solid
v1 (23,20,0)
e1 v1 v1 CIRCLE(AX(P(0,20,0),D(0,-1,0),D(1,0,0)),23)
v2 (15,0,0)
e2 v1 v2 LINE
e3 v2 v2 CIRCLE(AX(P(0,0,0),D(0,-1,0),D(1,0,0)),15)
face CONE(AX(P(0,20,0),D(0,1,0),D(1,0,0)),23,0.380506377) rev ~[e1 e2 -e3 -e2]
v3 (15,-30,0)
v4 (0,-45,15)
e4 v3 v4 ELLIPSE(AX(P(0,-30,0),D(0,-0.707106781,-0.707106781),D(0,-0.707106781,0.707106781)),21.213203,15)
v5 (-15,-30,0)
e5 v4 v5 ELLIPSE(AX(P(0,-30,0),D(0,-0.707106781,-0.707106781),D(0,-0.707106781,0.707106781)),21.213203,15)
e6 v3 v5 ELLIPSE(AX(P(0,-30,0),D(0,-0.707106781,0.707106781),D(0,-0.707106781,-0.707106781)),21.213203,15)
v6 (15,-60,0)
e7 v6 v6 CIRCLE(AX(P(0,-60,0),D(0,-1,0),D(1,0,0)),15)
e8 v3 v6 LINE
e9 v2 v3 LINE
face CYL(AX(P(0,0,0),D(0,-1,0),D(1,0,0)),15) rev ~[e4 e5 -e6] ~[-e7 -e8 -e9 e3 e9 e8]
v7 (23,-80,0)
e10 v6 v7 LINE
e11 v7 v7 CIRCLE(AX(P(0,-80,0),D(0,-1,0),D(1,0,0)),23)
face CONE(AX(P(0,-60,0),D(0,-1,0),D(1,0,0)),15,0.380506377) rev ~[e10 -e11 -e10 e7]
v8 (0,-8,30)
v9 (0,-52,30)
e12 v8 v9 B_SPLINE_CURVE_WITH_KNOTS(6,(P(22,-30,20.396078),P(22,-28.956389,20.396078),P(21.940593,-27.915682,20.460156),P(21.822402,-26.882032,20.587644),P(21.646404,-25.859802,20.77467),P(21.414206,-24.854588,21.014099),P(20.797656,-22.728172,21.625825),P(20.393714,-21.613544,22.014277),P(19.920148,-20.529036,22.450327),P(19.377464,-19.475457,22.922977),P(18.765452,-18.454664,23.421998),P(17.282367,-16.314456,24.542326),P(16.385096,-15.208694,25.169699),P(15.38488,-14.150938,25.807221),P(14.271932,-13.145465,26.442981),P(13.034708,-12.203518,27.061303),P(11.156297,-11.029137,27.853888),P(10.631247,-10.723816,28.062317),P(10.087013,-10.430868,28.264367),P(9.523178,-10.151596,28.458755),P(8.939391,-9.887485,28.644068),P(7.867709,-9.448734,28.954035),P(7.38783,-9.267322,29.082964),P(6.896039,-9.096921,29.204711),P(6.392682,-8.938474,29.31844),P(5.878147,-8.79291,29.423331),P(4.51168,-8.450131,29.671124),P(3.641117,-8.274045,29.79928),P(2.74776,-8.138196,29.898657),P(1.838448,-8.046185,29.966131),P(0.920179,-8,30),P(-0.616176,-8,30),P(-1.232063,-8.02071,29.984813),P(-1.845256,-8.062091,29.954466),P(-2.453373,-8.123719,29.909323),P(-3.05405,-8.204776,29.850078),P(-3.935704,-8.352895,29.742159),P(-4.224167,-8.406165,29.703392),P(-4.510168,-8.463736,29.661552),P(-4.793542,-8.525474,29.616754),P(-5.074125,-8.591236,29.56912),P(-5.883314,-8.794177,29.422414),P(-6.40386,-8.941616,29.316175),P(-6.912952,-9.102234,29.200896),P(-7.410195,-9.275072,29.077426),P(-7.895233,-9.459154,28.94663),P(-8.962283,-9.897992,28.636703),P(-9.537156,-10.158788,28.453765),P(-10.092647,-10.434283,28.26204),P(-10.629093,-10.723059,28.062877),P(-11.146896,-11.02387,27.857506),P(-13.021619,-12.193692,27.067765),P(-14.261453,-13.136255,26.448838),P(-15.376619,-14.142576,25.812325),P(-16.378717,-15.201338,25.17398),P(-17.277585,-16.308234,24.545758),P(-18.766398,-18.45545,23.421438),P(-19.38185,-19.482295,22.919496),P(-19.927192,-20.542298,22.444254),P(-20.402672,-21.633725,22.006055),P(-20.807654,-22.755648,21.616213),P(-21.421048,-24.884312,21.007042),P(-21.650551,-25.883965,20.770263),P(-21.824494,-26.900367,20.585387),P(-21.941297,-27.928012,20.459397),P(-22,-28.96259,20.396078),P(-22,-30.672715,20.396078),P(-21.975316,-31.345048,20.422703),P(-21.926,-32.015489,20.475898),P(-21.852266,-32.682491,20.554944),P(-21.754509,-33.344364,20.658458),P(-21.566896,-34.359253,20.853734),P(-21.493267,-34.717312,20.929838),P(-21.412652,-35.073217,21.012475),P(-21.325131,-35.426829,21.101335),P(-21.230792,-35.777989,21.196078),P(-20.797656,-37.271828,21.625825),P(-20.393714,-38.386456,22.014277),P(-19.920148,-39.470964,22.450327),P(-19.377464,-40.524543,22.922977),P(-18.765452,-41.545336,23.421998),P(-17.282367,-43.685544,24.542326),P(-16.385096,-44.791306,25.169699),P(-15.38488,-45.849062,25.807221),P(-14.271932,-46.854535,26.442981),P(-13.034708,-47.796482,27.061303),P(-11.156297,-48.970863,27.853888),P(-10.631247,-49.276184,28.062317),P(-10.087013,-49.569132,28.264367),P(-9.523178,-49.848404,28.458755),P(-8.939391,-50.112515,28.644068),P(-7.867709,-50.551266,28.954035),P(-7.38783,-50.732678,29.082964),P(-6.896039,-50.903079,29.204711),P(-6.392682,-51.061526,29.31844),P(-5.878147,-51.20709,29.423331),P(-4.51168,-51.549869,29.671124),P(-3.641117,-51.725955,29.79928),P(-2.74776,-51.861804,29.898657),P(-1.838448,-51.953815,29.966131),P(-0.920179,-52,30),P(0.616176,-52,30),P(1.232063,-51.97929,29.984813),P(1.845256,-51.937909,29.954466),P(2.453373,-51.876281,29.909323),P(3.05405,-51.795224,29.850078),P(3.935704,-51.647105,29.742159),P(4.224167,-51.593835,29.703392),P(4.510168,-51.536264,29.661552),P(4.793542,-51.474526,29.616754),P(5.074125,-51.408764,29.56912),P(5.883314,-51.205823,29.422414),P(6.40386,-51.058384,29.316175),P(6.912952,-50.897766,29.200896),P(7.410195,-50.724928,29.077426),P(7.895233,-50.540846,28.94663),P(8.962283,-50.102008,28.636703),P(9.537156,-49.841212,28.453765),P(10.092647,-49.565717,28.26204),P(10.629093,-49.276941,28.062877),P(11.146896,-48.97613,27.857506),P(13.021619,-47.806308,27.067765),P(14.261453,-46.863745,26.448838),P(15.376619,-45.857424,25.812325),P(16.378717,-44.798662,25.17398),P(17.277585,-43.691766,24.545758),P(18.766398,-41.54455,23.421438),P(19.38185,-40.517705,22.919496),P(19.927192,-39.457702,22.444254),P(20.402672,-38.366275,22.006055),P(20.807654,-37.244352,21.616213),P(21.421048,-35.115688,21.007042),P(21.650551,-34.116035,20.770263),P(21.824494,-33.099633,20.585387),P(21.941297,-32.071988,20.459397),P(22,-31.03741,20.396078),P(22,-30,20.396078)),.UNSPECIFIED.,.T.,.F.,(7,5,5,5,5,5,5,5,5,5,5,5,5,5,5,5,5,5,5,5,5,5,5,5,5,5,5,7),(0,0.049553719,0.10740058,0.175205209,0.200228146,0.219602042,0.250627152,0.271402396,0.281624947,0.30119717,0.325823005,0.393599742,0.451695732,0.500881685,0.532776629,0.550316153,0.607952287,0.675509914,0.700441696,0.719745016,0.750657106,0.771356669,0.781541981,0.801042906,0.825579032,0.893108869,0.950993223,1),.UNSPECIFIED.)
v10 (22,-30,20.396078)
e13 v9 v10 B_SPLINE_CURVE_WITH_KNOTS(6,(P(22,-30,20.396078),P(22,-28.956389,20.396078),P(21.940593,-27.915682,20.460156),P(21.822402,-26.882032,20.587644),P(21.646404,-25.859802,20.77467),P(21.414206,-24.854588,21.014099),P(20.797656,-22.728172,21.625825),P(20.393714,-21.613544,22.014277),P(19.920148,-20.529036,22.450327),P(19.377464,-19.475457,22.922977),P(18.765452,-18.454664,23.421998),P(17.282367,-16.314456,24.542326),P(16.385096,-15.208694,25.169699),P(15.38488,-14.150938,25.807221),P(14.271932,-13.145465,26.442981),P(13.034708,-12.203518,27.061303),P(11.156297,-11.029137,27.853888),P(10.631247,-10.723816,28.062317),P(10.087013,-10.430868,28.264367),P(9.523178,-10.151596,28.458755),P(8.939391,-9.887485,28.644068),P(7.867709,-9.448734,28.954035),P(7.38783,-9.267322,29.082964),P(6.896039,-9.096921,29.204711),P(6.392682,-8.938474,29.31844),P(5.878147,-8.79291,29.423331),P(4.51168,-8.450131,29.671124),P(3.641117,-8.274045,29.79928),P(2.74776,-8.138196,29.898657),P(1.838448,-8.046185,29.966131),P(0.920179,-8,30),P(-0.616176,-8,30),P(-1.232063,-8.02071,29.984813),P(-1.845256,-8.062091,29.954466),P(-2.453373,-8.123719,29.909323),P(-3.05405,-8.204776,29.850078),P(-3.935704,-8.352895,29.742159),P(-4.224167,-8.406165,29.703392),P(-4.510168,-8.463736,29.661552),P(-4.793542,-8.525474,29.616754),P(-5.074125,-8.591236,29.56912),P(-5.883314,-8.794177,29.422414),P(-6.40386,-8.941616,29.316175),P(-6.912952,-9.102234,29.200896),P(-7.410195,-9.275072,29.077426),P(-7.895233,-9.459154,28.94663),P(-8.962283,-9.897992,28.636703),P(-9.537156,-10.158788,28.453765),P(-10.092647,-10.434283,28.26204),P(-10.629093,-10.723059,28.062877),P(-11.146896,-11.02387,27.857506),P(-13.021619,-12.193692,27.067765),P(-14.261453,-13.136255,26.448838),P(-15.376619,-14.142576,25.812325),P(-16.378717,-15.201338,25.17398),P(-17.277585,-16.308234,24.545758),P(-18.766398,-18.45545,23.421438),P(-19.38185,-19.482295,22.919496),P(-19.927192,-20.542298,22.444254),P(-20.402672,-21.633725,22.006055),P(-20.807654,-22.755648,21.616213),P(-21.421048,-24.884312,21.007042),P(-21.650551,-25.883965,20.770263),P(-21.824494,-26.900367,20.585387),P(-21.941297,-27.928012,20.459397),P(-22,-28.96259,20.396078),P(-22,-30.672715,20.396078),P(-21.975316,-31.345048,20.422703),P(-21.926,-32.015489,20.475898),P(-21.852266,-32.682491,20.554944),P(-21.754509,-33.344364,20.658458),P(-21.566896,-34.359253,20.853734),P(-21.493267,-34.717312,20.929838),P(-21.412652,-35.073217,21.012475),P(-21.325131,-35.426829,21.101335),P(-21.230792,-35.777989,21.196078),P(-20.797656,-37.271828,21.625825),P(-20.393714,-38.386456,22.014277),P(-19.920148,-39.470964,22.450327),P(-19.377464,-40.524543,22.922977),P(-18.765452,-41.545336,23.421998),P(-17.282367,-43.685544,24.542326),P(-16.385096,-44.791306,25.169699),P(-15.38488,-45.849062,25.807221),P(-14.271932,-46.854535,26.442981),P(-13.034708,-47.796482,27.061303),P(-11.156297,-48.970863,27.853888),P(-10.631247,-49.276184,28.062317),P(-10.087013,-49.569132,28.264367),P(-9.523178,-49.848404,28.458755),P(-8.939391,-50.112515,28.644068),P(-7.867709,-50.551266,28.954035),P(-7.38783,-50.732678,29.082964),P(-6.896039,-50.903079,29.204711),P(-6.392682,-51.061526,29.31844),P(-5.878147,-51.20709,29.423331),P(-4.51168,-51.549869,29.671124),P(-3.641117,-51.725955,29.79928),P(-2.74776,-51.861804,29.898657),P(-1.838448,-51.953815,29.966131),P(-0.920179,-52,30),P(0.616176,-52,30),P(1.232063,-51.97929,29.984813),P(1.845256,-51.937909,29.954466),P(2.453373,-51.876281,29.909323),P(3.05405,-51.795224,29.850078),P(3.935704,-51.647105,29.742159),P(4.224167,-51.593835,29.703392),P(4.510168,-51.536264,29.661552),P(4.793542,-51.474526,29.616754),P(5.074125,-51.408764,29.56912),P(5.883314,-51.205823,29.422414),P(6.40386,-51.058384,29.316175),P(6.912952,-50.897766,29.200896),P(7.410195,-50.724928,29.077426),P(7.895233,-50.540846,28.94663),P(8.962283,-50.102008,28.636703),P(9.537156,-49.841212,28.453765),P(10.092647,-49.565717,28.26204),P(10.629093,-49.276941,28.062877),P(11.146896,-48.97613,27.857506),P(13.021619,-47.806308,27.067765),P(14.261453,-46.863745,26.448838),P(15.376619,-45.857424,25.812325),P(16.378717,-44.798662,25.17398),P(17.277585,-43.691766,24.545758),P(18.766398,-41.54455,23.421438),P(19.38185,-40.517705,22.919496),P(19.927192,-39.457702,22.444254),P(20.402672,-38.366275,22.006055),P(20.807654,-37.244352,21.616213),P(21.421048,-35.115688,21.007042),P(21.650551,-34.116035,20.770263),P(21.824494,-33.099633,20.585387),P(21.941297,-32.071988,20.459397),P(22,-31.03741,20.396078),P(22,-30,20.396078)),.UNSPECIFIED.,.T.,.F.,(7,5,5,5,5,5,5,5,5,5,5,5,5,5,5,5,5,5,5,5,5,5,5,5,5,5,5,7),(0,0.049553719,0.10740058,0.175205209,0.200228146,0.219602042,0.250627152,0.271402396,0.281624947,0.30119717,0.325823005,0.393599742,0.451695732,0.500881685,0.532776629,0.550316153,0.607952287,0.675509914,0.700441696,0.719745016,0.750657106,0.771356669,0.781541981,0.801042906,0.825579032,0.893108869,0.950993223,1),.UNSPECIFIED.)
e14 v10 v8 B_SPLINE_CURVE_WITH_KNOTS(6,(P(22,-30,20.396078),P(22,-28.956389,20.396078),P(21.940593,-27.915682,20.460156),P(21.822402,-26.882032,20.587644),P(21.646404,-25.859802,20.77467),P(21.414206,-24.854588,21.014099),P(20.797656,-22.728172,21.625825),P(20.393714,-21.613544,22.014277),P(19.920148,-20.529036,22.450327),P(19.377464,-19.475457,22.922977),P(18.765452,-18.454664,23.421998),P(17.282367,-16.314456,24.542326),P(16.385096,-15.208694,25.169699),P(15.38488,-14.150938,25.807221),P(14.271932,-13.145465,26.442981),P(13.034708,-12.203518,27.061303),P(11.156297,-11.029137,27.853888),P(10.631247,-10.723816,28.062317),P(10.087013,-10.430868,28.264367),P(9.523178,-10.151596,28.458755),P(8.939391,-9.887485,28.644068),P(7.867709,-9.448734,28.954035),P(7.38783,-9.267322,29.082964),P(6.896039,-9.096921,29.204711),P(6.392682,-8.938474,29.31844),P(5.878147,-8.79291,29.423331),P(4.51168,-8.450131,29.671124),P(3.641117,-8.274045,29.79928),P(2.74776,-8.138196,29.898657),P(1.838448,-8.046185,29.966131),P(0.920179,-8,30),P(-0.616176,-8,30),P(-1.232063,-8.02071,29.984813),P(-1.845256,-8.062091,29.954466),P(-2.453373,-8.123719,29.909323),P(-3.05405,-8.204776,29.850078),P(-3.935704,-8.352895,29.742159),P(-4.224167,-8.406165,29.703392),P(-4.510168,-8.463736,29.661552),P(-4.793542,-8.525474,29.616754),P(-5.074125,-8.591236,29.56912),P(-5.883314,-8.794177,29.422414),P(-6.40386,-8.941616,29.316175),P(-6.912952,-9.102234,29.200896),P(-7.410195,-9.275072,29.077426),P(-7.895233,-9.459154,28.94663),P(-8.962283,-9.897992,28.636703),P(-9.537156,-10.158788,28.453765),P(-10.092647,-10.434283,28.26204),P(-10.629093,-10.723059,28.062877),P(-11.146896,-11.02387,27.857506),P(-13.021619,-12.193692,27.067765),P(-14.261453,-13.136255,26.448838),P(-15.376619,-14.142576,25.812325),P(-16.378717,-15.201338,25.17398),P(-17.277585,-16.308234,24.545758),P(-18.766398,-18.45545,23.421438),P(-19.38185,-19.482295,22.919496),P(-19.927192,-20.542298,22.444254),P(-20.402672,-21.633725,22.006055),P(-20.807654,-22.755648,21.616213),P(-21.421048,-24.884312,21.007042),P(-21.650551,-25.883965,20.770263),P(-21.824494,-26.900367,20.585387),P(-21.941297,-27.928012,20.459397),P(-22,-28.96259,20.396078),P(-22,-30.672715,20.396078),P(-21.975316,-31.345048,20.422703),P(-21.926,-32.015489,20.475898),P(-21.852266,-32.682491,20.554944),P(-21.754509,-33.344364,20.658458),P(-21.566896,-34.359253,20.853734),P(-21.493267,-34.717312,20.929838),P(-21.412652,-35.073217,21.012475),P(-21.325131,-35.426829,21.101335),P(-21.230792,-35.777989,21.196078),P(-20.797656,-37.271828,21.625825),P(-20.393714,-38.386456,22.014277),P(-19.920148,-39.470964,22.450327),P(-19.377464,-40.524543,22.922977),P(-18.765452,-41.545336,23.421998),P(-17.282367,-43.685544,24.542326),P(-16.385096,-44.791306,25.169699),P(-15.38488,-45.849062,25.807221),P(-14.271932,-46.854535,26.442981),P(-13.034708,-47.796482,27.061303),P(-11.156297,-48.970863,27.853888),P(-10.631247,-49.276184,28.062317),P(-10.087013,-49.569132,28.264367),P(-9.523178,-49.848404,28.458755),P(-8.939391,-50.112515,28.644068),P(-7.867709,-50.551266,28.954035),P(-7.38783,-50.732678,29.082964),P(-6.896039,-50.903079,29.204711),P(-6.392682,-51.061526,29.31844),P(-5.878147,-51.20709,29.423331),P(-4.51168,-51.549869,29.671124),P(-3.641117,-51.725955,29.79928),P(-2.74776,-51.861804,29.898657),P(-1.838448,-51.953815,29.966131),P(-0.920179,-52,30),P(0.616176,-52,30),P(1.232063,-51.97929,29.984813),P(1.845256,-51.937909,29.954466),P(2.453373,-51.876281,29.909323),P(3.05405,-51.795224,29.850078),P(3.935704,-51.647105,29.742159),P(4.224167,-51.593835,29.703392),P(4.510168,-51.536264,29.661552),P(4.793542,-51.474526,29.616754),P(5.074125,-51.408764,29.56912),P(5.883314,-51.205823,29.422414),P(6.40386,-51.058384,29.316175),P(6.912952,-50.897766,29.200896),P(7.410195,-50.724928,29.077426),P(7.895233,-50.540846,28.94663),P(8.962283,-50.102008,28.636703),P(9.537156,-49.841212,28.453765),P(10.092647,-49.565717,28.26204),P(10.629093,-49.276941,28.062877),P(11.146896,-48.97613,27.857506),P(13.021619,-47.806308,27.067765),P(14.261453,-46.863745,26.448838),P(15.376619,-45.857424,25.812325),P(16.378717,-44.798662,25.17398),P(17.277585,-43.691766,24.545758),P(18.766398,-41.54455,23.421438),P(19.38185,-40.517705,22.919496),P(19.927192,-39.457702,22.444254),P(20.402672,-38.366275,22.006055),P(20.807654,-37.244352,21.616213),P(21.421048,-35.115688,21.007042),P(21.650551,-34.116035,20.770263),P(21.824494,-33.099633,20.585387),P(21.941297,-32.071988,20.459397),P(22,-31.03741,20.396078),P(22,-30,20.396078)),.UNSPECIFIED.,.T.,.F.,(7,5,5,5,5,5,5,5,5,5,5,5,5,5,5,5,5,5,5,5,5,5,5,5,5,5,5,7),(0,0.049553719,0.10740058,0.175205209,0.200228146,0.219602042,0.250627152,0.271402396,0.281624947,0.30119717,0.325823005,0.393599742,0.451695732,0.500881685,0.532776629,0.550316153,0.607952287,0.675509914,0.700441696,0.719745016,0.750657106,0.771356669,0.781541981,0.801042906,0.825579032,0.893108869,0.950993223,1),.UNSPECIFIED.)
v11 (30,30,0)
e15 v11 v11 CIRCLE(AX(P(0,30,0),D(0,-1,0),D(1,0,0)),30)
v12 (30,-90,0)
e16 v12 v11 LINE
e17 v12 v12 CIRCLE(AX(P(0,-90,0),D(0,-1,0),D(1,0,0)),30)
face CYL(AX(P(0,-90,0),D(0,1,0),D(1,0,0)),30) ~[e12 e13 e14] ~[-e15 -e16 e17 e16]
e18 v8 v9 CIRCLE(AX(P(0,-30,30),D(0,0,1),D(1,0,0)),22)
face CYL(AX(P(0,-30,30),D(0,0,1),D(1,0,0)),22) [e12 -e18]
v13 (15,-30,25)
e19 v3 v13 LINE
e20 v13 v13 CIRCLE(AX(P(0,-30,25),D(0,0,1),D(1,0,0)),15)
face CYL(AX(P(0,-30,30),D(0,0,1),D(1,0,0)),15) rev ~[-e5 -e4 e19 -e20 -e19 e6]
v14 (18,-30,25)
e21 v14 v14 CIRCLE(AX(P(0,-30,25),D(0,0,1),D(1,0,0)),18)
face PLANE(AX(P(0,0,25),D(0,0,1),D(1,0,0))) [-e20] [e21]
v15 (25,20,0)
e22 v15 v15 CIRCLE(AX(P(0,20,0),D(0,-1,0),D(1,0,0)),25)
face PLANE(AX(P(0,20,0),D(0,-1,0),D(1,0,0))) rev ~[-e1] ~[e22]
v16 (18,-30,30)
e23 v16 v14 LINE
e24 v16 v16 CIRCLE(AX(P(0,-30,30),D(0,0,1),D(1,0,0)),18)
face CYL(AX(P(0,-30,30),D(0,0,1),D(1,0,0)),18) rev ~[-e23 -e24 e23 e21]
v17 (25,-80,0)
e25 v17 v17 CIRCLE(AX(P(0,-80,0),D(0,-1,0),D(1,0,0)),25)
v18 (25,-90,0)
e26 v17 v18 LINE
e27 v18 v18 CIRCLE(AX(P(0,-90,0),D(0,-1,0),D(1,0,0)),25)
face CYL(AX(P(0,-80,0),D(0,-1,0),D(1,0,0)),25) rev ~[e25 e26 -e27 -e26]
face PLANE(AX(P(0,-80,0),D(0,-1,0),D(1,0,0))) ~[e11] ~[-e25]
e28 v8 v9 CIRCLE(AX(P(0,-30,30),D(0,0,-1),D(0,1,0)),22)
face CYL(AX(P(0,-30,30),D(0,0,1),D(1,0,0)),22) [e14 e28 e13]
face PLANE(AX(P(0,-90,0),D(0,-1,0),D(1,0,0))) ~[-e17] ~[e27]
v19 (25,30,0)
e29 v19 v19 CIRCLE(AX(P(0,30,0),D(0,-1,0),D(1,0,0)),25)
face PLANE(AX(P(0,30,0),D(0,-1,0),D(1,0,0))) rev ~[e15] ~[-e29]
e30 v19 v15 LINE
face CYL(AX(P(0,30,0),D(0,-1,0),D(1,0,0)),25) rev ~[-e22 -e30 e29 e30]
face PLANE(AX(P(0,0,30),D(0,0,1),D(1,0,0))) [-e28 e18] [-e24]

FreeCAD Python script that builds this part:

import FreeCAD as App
import Part
import Sketcher

V = App.Vector
Q = App.Units.Quantity

doc = App.newDocument("Part")
body = doc.addObject("PartDesign::Body", "Body")

sketch1 = body.newObject("Sketcher::SketchObject", "Sketch")
sketch1.AttachmentSupport = (doc.getObject("XY_Plane"), [""])
sketch1.MapMode = "FlatFace"
sketch1.addGeometry([
    Part.LineSegment(V(30, -90, 0), V(30, 30, 0)),
    Part.LineSegment(V(30, 30, 0), V(25, 30, 0)),
    Part.LineSegment(V(25, 30, 0), V(25, 20, 0)),
    Part.LineSegment(V(25, 20, 0), V(23, 20, 0)),
    Part.LineSegment(V(23, 20, 0), V(15, 0, 0)),
    Part.LineSegment(V(15, 0, 0), V(15, -60, 0)),
    Part.LineSegment(V(15, -60, 0), V(23, -80, 0)),
    Part.LineSegment(V(23, -80, 0), V(25, -80, 0)),
    Part.LineSegment(V(25, -80, 0), V(25, -90, 0)),
    Part.LineSegment(V(25, -90, 0), V(30, -90, 0)),
], False)
sketch1.addConstraint([
    Sketcher.Constraint("Coincident", 0, 2, 1, 1),
    Sketcher.Constraint("Coincident", 1, 2, 2, 1),
    Sketcher.Constraint("Coincident", 2, 2, 3, 1),
    Sketcher.Constraint("Coincident", 3, 2, 4, 1),
    Sketcher.Constraint("Coincident", 4, 2, 5, 1),
    Sketcher.Constraint("Coincident", 5, 2, 6, 1),
    Sketcher.Constraint("Coincident", 6, 2, 7, 1),
    Sketcher.Constraint("Coincident", 7, 2, 8, 1),
    Sketcher.Constraint("Coincident", 8, 2, 9, 1),
    Sketcher.Constraint("Coincident", 9, 2, 0, 1),
    Sketcher.Constraint("Vertical", 0),
    Sketcher.Constraint("Horizontal", 1),
    Sketcher.Constraint("Vertical", 2),
    Sketcher.Constraint("Horizontal", 3),
    Sketcher.Constraint("Vertical", 5),
    Sketcher.Constraint("Horizontal", 7),
    Sketcher.Constraint("Vertical", 8),
    Sketcher.Constraint("Horizontal", 9),
    Sketcher.Constraint("PointOnObject", 4, 2, -1),
    Sketcher.Constraint("Vertical", 3, 2, 6, 2),
    Sketcher.Constraint("Vertical", 2, 2, 7, 2),
    Sketcher.Constraint("Equal", 2, 8),
    Sketcher.Constraint("Equal", 4, 6),
    Sketcher.Constraint("DistanceX", 3, 2, 3, 1, Q("2 mm")),
    Sketcher.Constraint("DistanceY", 2, 2, 2, 1, Q("10 mm")),
    Sketcher.Constraint("DistanceY", 5, 2, 5, 1, Q("60 mm")),
    Sketcher.Constraint("DistanceX", -1, 1, 0, 2, Q("30 mm")),
    Sketcher.Constraint("DistanceY", -1, 1, 0, 2, Q("30 mm")),
    Sketcher.Constraint("DistanceX", 4, 2, 2, 2, Q("10 mm")),
    Sketcher.Constraint("DistanceX", 1, 2, 1, 1, Q("5 mm")),
])
revolution = body.newObject("PartDesign::Revolution", "Revolution")
revolution.Profile = sketch1
revolution.ReferenceAxis = (sketch1, ["V_Axis"])
revolution.Angle = 360

sketch2 = body.newObject("Sketcher::SketchObject", "Sketch001")
sketch2.AttachmentSupport = (doc.getObject("XY_Plane"), [""])
sketch2.MapMode = "FlatFace"
sketch2.AttachmentOffset = App.Placement(V(0, 0, 30), App.Rotation())
sketch2.addGeometry(Part.Circle(V(0, -30, 0), V(0, 0, 1), 15), False)
sketch2.addConstraint([
    Sketcher.Constraint("PointOnObject", 0, 3, -2),
    Sketcher.Constraint("Diameter", 0, Q("30 mm")),
    Sketcher.Constraint("DistanceY", 0, 3, -1, 1, Q("30 mm")),
])
pocket1 = body.newObject("PartDesign::Pocket", "Pocket")
pocket1.Profile = sketch2
pocket1.Length = 30

sketch3 = body.newObject("Sketcher::SketchObject", "Sketch002")
sketch3.AttachmentSupport = (doc.getObject("XY_Plane"), [""])
sketch3.MapMode = "FlatFace"
sketch3.AttachmentOffset = App.Placement(V(0, 0, 30), App.Rotation())
sketch3.addGeometry([
    Part.Circle(V(0, -30, 0), V(0, 0, 1), 22),
    Part.Circle(V(0, -30, 0), V(0, 0, 1), 15),
], False)
sketch3.addConstraint([
    Sketcher.Constraint("Coincident", 1, 3, 0, 3),
    Sketcher.Constraint("PointOnObject", 0, 3, -2),
    Sketcher.Constraint("Diameter", 0, Q("44 mm")),
    Sketcher.Constraint("Diameter", 1, Q("30 mm")),
    Sketcher.Constraint("DistanceY", 0, 3, -1, 1, Q("30 mm")),
])
pad1 = body.newObject("PartDesign::Pad", "Pad")
pad1.Profile = sketch3
pad1.Length = 10
pad1.Reversed = True

sketch4 = body.newObject("Sketcher::SketchObject", "Sketch003")
sketch4.AttachmentSupport = (doc.getObject("XY_Plane"), [""])
sketch4.MapMode = "FlatFace"
sketch4.AttachmentOffset = App.Placement(V(0, 0, 30), App.Rotation())
sketch4.addGeometry([
    Part.Circle(V(0, -30, 0), V(0, 0, 1), 18),
    Part.Circle(V(0, -30, 0), V(0, 0, 1), 15),
], False)
sketch4.addConstraint([
    Sketcher.Constraint("Coincident", 1, 3, 0, 3),
    Sketcher.Constraint("PointOnObject", 0, 3, -2),
    Sketcher.Constraint("Diameter", 0, Q("36 mm")),
    Sketcher.Constraint("Diameter", 1, Q("30 mm")),
    Sketcher.Constraint("DistanceY", 0, 3, -1, 1, Q("30 mm")),
])
pocket2 = body.newObject("PartDesign::Pocket", "Pocket001")
pocket2.Profile = sketch4
pocket2.Length = 5

doc.recompute()
